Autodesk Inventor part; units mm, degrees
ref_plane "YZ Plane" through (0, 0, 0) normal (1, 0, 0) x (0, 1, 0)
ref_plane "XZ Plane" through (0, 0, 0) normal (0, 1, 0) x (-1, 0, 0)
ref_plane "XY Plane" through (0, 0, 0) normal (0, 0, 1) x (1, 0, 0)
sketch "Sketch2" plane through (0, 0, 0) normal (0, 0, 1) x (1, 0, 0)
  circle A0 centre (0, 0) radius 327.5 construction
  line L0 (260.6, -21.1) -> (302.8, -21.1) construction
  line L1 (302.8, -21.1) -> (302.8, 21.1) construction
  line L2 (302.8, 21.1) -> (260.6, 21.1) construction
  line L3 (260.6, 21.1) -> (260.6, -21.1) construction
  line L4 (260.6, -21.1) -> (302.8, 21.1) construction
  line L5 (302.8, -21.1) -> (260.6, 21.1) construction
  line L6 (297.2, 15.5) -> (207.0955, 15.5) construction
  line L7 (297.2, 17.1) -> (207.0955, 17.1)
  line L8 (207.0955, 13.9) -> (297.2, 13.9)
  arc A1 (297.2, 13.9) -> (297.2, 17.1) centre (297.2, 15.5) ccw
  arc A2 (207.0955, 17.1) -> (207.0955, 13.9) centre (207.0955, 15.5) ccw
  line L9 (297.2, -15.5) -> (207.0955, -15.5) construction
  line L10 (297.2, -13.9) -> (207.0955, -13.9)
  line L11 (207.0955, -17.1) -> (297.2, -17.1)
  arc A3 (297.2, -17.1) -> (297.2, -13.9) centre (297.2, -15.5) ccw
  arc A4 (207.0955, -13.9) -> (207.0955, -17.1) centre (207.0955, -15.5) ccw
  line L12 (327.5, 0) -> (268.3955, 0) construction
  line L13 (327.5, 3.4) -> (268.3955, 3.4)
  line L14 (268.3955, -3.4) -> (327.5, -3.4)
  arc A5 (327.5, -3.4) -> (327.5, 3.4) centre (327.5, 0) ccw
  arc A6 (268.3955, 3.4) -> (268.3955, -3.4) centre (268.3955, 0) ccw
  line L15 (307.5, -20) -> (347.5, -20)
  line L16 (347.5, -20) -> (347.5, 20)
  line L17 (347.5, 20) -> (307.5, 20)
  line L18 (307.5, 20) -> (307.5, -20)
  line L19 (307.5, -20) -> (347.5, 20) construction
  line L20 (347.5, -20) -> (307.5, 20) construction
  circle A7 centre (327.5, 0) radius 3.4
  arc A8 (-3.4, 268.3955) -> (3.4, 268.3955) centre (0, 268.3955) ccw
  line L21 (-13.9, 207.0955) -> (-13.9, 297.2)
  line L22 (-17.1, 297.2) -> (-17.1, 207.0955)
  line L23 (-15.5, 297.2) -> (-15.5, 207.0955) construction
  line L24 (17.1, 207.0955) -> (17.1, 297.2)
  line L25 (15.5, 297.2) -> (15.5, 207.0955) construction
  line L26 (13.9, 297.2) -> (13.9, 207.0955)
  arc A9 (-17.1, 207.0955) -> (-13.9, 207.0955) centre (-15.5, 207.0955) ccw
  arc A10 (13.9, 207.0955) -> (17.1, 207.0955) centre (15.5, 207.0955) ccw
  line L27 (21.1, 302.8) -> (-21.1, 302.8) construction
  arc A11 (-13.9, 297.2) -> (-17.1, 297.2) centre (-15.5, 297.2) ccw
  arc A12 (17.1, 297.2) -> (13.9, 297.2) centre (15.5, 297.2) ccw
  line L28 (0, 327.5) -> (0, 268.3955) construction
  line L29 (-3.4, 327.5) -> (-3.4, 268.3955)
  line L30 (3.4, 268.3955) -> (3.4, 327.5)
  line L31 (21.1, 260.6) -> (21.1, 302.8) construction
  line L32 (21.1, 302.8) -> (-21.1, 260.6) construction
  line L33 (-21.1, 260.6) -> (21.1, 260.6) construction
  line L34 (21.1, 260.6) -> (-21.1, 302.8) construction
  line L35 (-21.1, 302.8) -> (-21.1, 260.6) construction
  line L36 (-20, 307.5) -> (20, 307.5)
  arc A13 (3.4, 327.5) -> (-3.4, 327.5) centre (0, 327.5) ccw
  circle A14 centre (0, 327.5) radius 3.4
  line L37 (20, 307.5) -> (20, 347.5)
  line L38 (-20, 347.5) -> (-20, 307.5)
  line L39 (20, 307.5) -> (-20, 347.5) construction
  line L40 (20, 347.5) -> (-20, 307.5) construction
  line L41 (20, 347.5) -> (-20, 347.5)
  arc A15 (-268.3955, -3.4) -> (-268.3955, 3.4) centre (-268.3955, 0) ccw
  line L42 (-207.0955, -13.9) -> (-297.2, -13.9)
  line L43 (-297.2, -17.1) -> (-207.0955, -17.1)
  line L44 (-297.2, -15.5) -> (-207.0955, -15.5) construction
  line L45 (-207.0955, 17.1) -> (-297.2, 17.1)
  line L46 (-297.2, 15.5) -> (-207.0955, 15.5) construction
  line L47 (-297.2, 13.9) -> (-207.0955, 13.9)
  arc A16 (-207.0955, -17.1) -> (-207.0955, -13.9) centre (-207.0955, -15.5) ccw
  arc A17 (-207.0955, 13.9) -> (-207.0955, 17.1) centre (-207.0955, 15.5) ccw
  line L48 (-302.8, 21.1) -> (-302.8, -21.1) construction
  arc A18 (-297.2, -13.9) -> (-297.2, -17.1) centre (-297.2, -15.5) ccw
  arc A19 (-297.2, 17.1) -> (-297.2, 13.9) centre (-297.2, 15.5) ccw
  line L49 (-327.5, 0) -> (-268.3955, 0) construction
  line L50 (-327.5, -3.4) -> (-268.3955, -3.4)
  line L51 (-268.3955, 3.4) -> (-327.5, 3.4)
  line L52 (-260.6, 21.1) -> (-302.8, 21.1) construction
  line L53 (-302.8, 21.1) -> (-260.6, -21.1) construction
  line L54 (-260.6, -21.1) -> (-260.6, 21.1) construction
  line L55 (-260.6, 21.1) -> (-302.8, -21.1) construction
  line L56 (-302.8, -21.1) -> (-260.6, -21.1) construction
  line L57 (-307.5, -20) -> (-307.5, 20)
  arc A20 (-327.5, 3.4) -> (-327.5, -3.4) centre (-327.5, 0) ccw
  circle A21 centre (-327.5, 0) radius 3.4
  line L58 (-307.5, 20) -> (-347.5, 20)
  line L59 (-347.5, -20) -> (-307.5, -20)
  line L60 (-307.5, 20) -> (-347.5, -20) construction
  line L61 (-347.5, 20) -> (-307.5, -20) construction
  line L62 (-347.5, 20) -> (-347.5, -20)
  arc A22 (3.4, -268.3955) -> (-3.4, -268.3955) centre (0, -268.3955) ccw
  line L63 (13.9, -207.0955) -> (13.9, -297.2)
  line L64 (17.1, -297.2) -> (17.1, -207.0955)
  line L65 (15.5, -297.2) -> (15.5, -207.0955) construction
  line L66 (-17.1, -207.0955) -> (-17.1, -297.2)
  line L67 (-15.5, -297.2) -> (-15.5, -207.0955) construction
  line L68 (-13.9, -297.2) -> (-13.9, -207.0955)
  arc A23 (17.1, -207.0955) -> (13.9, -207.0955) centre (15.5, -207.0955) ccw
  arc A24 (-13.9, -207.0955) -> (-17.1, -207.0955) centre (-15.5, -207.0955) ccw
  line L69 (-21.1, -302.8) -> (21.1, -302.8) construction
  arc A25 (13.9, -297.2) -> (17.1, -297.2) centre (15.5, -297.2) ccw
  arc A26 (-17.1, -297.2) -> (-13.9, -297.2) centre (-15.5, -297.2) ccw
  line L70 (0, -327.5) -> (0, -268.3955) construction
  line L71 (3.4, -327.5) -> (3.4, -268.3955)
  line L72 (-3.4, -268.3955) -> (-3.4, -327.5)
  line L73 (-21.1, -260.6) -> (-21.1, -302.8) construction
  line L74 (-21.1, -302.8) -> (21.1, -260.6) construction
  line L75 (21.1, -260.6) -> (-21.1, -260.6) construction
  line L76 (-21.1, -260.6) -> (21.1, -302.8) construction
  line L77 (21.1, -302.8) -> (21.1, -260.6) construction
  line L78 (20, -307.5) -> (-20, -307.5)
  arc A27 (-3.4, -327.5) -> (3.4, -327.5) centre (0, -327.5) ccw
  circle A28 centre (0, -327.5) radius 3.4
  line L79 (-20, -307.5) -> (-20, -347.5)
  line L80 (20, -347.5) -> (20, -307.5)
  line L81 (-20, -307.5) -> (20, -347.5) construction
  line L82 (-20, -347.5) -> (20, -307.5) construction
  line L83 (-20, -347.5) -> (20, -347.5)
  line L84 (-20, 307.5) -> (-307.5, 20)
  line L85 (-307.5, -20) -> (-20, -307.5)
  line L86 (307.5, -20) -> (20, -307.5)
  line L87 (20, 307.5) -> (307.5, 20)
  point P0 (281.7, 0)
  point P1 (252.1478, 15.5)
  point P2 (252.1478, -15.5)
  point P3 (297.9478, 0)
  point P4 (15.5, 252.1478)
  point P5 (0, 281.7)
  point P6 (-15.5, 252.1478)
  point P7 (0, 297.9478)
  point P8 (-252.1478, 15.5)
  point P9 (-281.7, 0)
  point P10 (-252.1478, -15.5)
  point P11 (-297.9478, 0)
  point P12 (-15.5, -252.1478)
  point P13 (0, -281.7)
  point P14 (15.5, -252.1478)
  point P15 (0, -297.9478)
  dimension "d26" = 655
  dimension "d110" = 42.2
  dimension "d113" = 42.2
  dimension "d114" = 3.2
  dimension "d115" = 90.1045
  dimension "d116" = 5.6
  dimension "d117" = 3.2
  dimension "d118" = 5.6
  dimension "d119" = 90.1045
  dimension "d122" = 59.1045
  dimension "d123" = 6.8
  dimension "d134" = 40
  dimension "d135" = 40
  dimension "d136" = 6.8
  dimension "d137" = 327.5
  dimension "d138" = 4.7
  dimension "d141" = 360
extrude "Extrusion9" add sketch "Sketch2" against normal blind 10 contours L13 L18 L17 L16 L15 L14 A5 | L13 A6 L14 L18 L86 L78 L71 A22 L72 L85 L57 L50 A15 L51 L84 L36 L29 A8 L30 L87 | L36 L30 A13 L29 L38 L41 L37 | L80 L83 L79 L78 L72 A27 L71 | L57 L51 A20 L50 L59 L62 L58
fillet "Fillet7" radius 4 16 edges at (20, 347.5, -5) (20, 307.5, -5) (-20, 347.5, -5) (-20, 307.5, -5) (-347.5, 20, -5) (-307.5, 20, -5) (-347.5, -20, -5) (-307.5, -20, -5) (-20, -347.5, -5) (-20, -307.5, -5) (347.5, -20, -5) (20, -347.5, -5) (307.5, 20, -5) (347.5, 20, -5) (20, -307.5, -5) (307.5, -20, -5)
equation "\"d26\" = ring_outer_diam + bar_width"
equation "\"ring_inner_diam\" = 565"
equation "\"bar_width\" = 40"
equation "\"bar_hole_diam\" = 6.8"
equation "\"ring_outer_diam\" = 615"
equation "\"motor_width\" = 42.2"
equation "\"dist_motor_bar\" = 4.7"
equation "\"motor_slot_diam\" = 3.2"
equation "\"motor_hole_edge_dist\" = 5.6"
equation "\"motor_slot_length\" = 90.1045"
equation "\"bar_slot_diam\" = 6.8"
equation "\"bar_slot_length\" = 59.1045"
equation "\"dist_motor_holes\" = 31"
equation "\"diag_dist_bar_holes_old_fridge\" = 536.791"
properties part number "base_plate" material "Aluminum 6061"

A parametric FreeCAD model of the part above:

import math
import FreeCAD as App
import Part
import Sketcher
Q = App.Units.Quantity


def edges_at(feature, points):
    """Names of the edges that pass closest to the given points."""
    edges = feature.Shape.Edges
    near = lambda p: min(range(len(edges)), key=lambda i: edges[i].distToShape(Part.Vertex(*p))[0])
    return sorted({f"Edge{near(p) + 1}" for p in points})

doc = App.newDocument("Part")
params = doc.addObject("Spreadsheet::Sheet", "Params")
for row, (alias, value) in enumerate([
    ("sketch1_radius", "3.4 mm"),
    ("sketch1_radius2", "1.6 mm"),
    ("sketch1_width", "40 mm"),
    ("pad1_length", "10 mm"),
    ("fillet_radius", "4 mm"),
], start=1):
    params.set(f"A{row}", alias)
    params.set(f"B{row}", "=" + value)
    params.setAlias(f"B{row}", alias)

body = doc.addObject("PartDesign::Body", "Body")

sketch1 = body.newObject("Sketcher::SketchObject", "Sketch")
sketch1.AttachmentSupport = (doc.getObject("XY_Plane"), [""])
sketch1.MapMode = "FlatFace"
sketch1.addGeometry(Part.LineSegment(App.Vector(347.5, 20, 0), App.Vector(307.5, 20, 0)), False)
sketch1.addGeometry(Part.LineSegment(App.Vector(307.5, 20, 0), App.Vector(20, 307.5, 0)), False)
sketch1.addGeometry(Part.LineSegment(App.Vector(20, 307.5, 0), App.Vector(20, 347.5, 0)), False)
sketch1.addGeometry(Part.LineSegment(App.Vector(20, 347.5, 0), App.Vector(-20, 347.5, 0)), False)
sketch1.addGeometry(Part.LineSegment(App.Vector(-20, 347.5, 0), App.Vector(-20, 307.5, 0)), False)
sketch1.addGeometry(Part.LineSegment(App.Vector(-20, 307.5, 0), App.Vector(-307.5, 20, 0)), False)
sketch1.addGeometry(Part.LineSegment(App.Vector(-307.5, 20, 0), App.Vector(-347.5, 20, 0)), False)
sketch1.addGeometry(Part.LineSegment(App.Vector(-347.5, 20, 0), App.Vector(-347.5, -20, 0)), False)
sketch1.addGeometry(Part.LineSegment(App.Vector(-347.5, -20, 0), App.Vector(-307.5, -20, 0)), False)
sketch1.addGeometry(Part.LineSegment(App.Vector(-307.5, -20, 0), App.Vector(-20, -307.5, 0)), False)
sketch1.addGeometry(Part.LineSegment(App.Vector(-20, -307.5, 0), App.Vector(-20, -347.5, 0)), False)
sketch1.addGeometry(Part.LineSegment(App.Vector(-20, -347.5, 0), App.Vector(20, -347.5, 0)), False)
sketch1.addGeometry(Part.LineSegment(App.Vector(20, -347.5, 0), App.Vector(20, -307.5, 0)), False)
sketch1.addGeometry(Part.LineSegment(App.Vector(20, -307.5, 0), App.Vector(307.5, -20, 0)), False)
sketch1.addGeometry(Part.LineSegment(App.Vector(307.5, -20, 0), App.Vector(347.5, -20, 0)), False)
sketch1.addGeometry(Part.LineSegment(App.Vector(347.5, -20, 0), App.Vector(347.5, 20, 0)), False)
sketch1.addGeometry(Part.ArcOfCircle(Part.Circle(App.Vector(327.5, 0, 0), App.Vector(0, 0, 1), 3.4), math.radians(-90), math.radians(90)), False)
sketch1.addGeometry(Part.LineSegment(App.Vector(327.5, -3.4, 0), App.Vector(268.4, -3.4, 0)), False)
sketch1.addGeometry(Part.ArcOfCircle(Part.Circle(App.Vector(268.4, 0, 0), App.Vector(0, 0, 1), 3.4), math.radians(90), math.radians(270)), False)
sketch1.addGeometry(Part.LineSegment(App.Vector(268.4, 3.4, 0), App.Vector(327.5, 3.4, 0)), False)
sketch1.addGeometry(Part.LineSegment(App.Vector(13.9, 207.1, 0), App.Vector(13.9, 297.2, 0)), False)
sketch1.addGeometry(Part.ArcOfCircle(Part.Circle(App.Vector(15.5, 297.2, 0), App.Vector(0, 0, 1), 1.6), math.radians(0), math.radians(180)), False)
sketch1.addGeometry(Part.LineSegment(App.Vector(17.1, 297.2, 0), App.Vector(17.1, 207.1, 0)), False)
sketch1.addGeometry(Part.ArcOfCircle(Part.Circle(App.Vector(15.5, 207.1, 0), App.Vector(0, 0, 1), 1.6), math.radians(180), math.radians(360)), False)
sketch1.addGeometry(Part.LineSegment(App.Vector(3.4, -268.4, 0), App.Vector(3.4, -327.5, 0)), False)
sketch1.addGeometry(Part.ArcOfCircle(Part.Circle(App.Vector(0, -327.5, 0), App.Vector(0, 0, 1), 3.4), math.radians(180), math.radians(360)), False)
sketch1.addGeometry(Part.LineSegment(App.Vector(-3.4, -327.5, 0), App.Vector(-3.4, -268.4, 0)), False)
sketch1.addGeometry(Part.ArcOfCircle(Part.Circle(App.Vector(0, -268.4, 0), App.Vector(0, 0, 1), 3.4), math.radians(0), math.radians(180)), False)
sketch1.addGeometry(Part.LineSegment(App.Vector(-268.4, -3.4, 0), App.Vector(-327.5, -3.4, 0)), False)
sketch1.addGeometry(Part.ArcOfCircle(Part.Circle(App.Vector(-327.5, 0, 0), App.Vector(0, 0, 1), 3.4), math.radians(90), math.radians(270)), False)
sketch1.addGeometry(Part.LineSegment(App.Vector(-327.5, 3.4, 0), App.Vector(-268.4, 3.4, 0)), False)
sketch1.addGeometry(Part.ArcOfCircle(Part.Circle(App.Vector(-268.4, 0, 0), App.Vector(0, 0, 1), 3.4), math.radians(-90), math.radians(90)), False)
sketch1.addGeometry(Part.LineSegment(App.Vector(-3.4, 268.4, 0), App.Vector(-3.4, 327.5, 0)), False)
sketch1.addGeometry(Part.ArcOfCircle(Part.Circle(App.Vector(0, 327.5, 0), App.Vector(0, 0, 1), 3.4), math.radians(0), math.radians(180)), False)
sketch1.addGeometry(Part.LineSegment(App.Vector(3.4, 327.5, 0), App.Vector(3.4, 268.4, 0)), False)
sketch1.addGeometry(Part.ArcOfCircle(Part.Circle(App.Vector(0, 268.4, 0), App.Vector(0, 0, 1), 3.4), math.radians(180), math.radians(360)), False)
sketch1.addGeometry(Part.LineSegment(App.Vector(-17.1, -297.2, 0), App.Vector(-17.1, -207.1, 0)), False)
sketch1.addGeometry(Part.ArcOfCircle(Part.Circle(App.Vector(-15.5, -207.1, 0), App.Vector(0, 0, 1), 1.6), math.radians(0), math.radians(180)), False)
sketch1.addGeometry(Part.LineSegment(App.Vector(-13.9, -207.1, 0), App.Vector(-13.9, -297.2, 0)), False)
sketch1.addGeometry(Part.ArcOfCircle(Part.Circle(App.Vector(-15.5, -297.2, 0), App.Vector(0, 0, 1), 1.6), math.radians(180), math.radians(360)), False)
sketch1.addGeometry(Part.LineSegment(App.Vector(-297.2, -13.9, 0), App.Vector(-207.1, -13.9, 0)), False)
sketch1.addGeometry(Part.ArcOfCircle(Part.Circle(App.Vector(-207.1, -15.5, 0), App.Vector(0, 0, 1), 1.6), math.radians(-90), math.radians(90)), False)
sketch1.addGeometry(Part.LineSegment(App.Vector(-207.1, -17.1, 0), App.Vector(-297.2, -17.1, 0)), False)
sketch1.addGeometry(Part.ArcOfCircle(Part.Circle(App.Vector(-297.2, -15.5, 0), App.Vector(0, 0, 1), 1.6), math.radians(90), math.radians(270)), False)
sketch1.addGeometry(Part.LineSegment(App.Vector(13.9, -297.2, 0), App.Vector(13.9, -207.1, 0)), False)
sketch1.addGeometry(Part.ArcOfCircle(Part.Circle(App.Vector(15.5, -207.1, 0), App.Vector(0, 0, 1), 1.6), math.radians(0), math.radians(180)), False)
sketch1.addGeometry(Part.LineSegment(App.Vector(17.1, -207.1, 0), App.Vector(17.1, -297.2, 0)), False)
sketch1.addGeometry(Part.ArcOfCircle(Part.Circle(App.Vector(15.5, -297.2, 0), App.Vector(0, 0, 1), 1.6), math.radians(180), math.radians(360)), False)
sketch1.addGeometry(Part.LineSegment(App.Vector(207.1, -13.9, 0), App.Vector(297.2, -13.9, 0)), False)
sketch1.addGeometry(Part.ArcOfCircle(Part.Circle(App.Vector(297.2, -15.5, 0), App.Vector(0, 0, 1), 1.6), math.radians(-90), math.radians(90)), False)
sketch1.addGeometry(Part.LineSegment(App.Vector(297.2, -17.1, 0), App.Vector(207.1, -17.1, 0)), False)
sketch1.addGeometry(Part.ArcOfCircle(Part.Circle(App.Vector(207.1, -15.5, 0), App.Vector(0, 0, 1), 1.6), math.radians(90), math.radians(270)), False)
sketch1.addGeometry(Part.LineSegment(App.Vector(-297.2, 17.1, 0), App.Vector(-207.1, 17.1, 0)), False)
sketch1.addGeometry(Part.ArcOfCircle(Part.Circle(App.Vector(-207.1, 15.5, 0), App.Vector(0, 0, 1), 1.6), math.radians(-90), math.radians(90)), False)
sketch1.addGeometry(Part.LineSegment(App.Vector(-207.1, 13.9, 0), App.Vector(-297.2, 13.9, 0)), False)
sketch1.addGeometry(Part.ArcOfCircle(Part.Circle(App.Vector(-297.2, 15.5, 0), App.Vector(0, 0, 1), 1.6), math.radians(90), math.radians(270)), False)
sketch1.addGeometry(Part.LineSegment(App.Vector(-13.9, 297.2, 0), App.Vector(-13.9, 207.1, 0)), False)
sketch1.addGeometry(Part.ArcOfCircle(Part.Circle(App.Vector(-15.5, 207.1, 0), App.Vector(0, 0, 1), 1.6), math.radians(180), math.radians(360)), False)
sketch1.addGeometry(Part.LineSegment(App.Vector(-17.1, 207.1, 0), App.Vector(-17.1, 297.2, 0)), False)
sketch1.addGeometry(Part.ArcOfCircle(Part.Circle(App.Vector(-15.5, 297.2, 0), App.Vector(0, 0, 1), 1.6), math.radians(0), math.radians(180)), False)
sketch1.addGeometry(Part.LineSegment(App.Vector(207.1, 17.1, 0), App.Vector(297.2, 17.1, 0)), False)
sketch1.addGeometry(Part.ArcOfCircle(Part.Circle(App.Vector(297.2, 15.5, 0), App.Vector(0, 0, 1), 1.6), math.radians(-90), math.radians(90)), False)
sketch1.addGeometry(Part.LineSegment(App.Vector(297.2, 13.9, 0), App.Vector(207.1, 13.9, 0)), False)
sketch1.addGeometry(Part.ArcOfCircle(Part.Circle(App.Vector(207.1, 15.5, 0), App.Vector(0, 0, 1), 1.6), math.radians(90), math.radians(270)), False)
sketch1.addConstraint(Sketcher.Constraint("Coincident", 0, 2, 1, 1))
sketch1.addConstraint(Sketcher.Constraint("Coincident", 1, 2, 2, 1))
sketch1.addConstraint(Sketcher.Constraint("Coincident", 2, 2, 3, 1))
sketch1.addConstraint(Sketcher.Constraint("Coincident", 3, 2, 4, 1))
sketch1.addConstraint(Sketcher.Constraint("Coincident", 4, 2, 5, 1))
sketch1.addConstraint(Sketcher.Constraint("Coincident", 5, 2, 6, 1))
sketch1.addConstraint(Sketcher.Constraint("Coincident", 6, 2, 7, 1))
sketch1.addConstraint(Sketcher.Constraint("Coincident", 7, 2, 8, 1))
sketch1.addConstraint(Sketcher.Constraint("Coincident", 8, 2, 9, 1))
sketch1.addConstraint(Sketcher.Constraint("Coincident", 9, 2, 10, 1))
sketch1.addConstraint(Sketcher.Constraint("Coincident", 10, 2, 11, 1))
sketch1.addConstraint(Sketcher.Constraint("Coincident", 11, 2, 12, 1))
sketch1.addConstraint(Sketcher.Constraint("Coincident", 12, 2, 13, 1))
sketch1.addConstraint(Sketcher.Constraint("Coincident", 13, 2, 14, 1))
sketch1.addConstraint(Sketcher.Constraint("Coincident", 14, 2, 15, 1))
sketch1.addConstraint(Sketcher.Constraint("Coincident", 15, 2, 0, 1))
sketch1.addConstraint(Sketcher.Constraint("Tangent", 16, 1, 17, 1))
sketch1.addConstraint(Sketcher.Constraint("Tangent", 17, 2, 18, 2))
sketch1.addConstraint(Sketcher.Constraint("Tangent", 18, 1, 19, 1))
sketch1.addConstraint(Sketcher.Constraint("Tangent", 19, 2, 16, 2))
sketch1.addConstraint(Sketcher.Constraint("Tangent", 20, 2, 21, 2))
sketch1.addConstraint(Sketcher.Constraint("Tangent", 21, 1, 22, 1))
sketch1.addConstraint(Sketcher.Constraint("Tangent", 22, 2, 23, 2))
sketch1.addConstraint(Sketcher.Constraint("Tangent", 23, 1, 20, 1))
sketch1.addConstraint(Sketcher.Constraint("Tangent", 24, 2, 25, 2))
sketch1.addConstraint(Sketcher.Constraint("Tangent", 25, 1, 26, 1))
sketch1.addConstraint(Sketcher.Constraint("Tangent", 26, 2, 27, 2))
sketch1.addConstraint(Sketcher.Constraint("Tangent", 27, 1, 24, 1))
sketch1.addConstraint(Sketcher.Constraint("Tangent", 28, 2, 29, 2))
sketch1.addConstraint(Sketcher.Constraint("Tangent", 29, 1, 30, 1))
sketch1.addConstraint(Sketcher.Constraint("Tangent", 30, 2, 31, 2))
sketch1.addConstraint(Sketcher.Constraint("Tangent", 31, 1, 28, 1))
sketch1.addConstraint(Sketcher.Constraint("Tangent", 32, 2, 33, 2))
sketch1.addConstraint(Sketcher.Constraint("Tangent", 33, 1, 34, 1))
sketch1.addConstraint(Sketcher.Constraint("Tangent", 34, 2, 35, 2))
sketch1.addConstraint(Sketcher.Constraint("Tangent", 35, 1, 32, 1))
sketch1.addConstraint(Sketcher.Constraint("Tangent", 36, 2, 37, 2))
sketch1.addConstraint(Sketcher.Constraint("Tangent", 37, 1, 38, 1))
sketch1.addConstraint(Sketcher.Constraint("Tangent", 38, 2, 39, 2))
sketch1.addConstraint(Sketcher.Constraint("Tangent", 39, 1, 36, 1))
sketch1.addConstraint(Sketcher.Constraint("Tangent", 40, 2, 41, 2))
sketch1.addConstraint(Sketcher.Constraint("Tangent", 41, 1, 42, 1))
sketch1.addConstraint(Sketcher.Constraint("Tangent", 42, 2, 43, 2))
sketch1.addConstraint(Sketcher.Constraint("Tangent", 43, 1, 40, 1))
sketch1.addConstraint(Sketcher.Constraint("Tangent", 44, 2, 45, 2))
sketch1.addConstraint(Sketcher.Constraint("Tangent", 45, 1, 46, 1))
sketch1.addConstraint(Sketcher.Constraint("Tangent", 46, 2, 47, 2))
sketch1.addConstraint(Sketcher.Constraint("Tangent", 47, 1, 44, 1))
sketch1.addConstraint(Sketcher.Constraint("Tangent", 48, 2, 49, 2))
sketch1.addConstraint(Sketcher.Constraint("Tangent", 49, 1, 50, 1))
sketch1.addConstraint(Sketcher.Constraint("Tangent", 50, 2, 51, 2))
sketch1.addConstraint(Sketcher.Constraint("Tangent", 51, 1, 48, 1))
sketch1.addConstraint(Sketcher.Constraint("Tangent", 52, 2, 53, 2))
sketch1.addConstraint(Sketcher.Constraint("Tangent", 53, 1, 54, 1))
sketch1.addConstraint(Sketcher.Constraint("Tangent", 54, 2, 55, 2))
sketch1.addConstraint(Sketcher.Constraint("Tangent", 55, 1, 52, 1))
sketch1.addConstraint(Sketcher.Constraint("Tangent", 56, 2, 57, 2))
sketch1.addConstraint(Sketcher.Constraint("Tangent", 57, 1, 58, 1))
sketch1.addConstraint(Sketcher.Constraint("Tangent", 58, 2, 59, 2))
sketch1.addConstraint(Sketcher.Constraint("Tangent", 59, 1, 56, 1))
sketch1.addConstraint(Sketcher.Constraint("Tangent", 60, 2, 61, 2))
sketch1.addConstraint(Sketcher.Constraint("Tangent", 61, 1, 62, 1))
sketch1.addConstraint(Sketcher.Constraint("Tangent", 62, 2, 63, 2))
sketch1.addConstraint(Sketcher.Constraint("Tangent", 63, 1, 60, 1))
sketch1.addConstraint(Sketcher.Constraint("Horizontal", 0))
sketch1.addConstraint(Sketcher.Constraint("Vertical", 2))
sketch1.addConstraint(Sketcher.Constraint("Horizontal", 3))
sketch1.addConstraint(Sketcher.Constraint("Vertical", 4))
sketch1.addConstraint(Sketcher.Constraint("Horizontal", 6))
sketch1.addConstraint(Sketcher.Constraint("Vertical", 7))
sketch1.addConstraint(Sketcher.Constraint("Horizontal", 8))
sketch1.addConstraint(Sketcher.Constraint("Vertical", 10))
sketch1.addConstraint(Sketcher.Constraint("Horizontal", 11))
sketch1.addConstraint(Sketcher.Constraint("Vertical", 12))
sketch1.addConstraint(Sketcher.Constraint("Horizontal", 14))
sketch1.addConstraint(Sketcher.Constraint("Vertical", 15))
sketch1.addConstraint(Sketcher.Constraint("Horizontal", 17))
sketch1.addConstraint(Sketcher.Constraint("Horizontal", 19))
sketch1.addConstraint(Sketcher.Constraint("Vertical", 20))
sketch1.addConstraint(Sketcher.Constraint("Vertical", 22))
sketch1.addConstraint(Sketcher.Constraint("Vertical", 24))
sketch1.addConstraint(Sketcher.Constraint("Vertical", 26))
sketch1.addConstraint(Sketcher.Constraint("Horizontal", 28))
sketch1.addConstraint(Sketcher.Constraint("Horizontal", 30))
sketch1.addConstraint(Sketcher.Constraint("Vertical", 32))
sketch1.addConstraint(Sketcher.Constraint("Vertical", 34))
sketch1.addConstraint(Sketcher.Constraint("Vertical", 36))
sketch1.addConstraint(Sketcher.Constraint("Vertical", 38))
sketch1.addConstraint(Sketcher.Constraint("Horizontal", 40))
sketch1.addConstraint(Sketcher.Constraint("Horizontal", 42))
sketch1.addConstraint(Sketcher.Constraint("Vertical", 44))
sketch1.addConstraint(Sketcher.Constraint("Vertical", 46))
sketch1.addConstraint(Sketcher.Constraint("Horizontal", 48))
sketch1.addConstraint(Sketcher.Constraint("Horizontal", 50))
sketch1.addConstraint(Sketcher.Constraint("Horizontal", 52))
sketch1.addConstraint(Sketcher.Constraint("Horizontal", 54))
sketch1.addConstraint(Sketcher.Constraint("Vertical", 56))
sketch1.addConstraint(Sketcher.Constraint("Vertical", 58))
sketch1.addConstraint(Sketcher.Constraint("Horizontal", 60))
sketch1.addConstraint(Sketcher.Constraint("Horizontal", 62))
sketch1.addConstraint(Sketcher.Constraint("Equal", 18, 25))
sketch1.addConstraint(Sketcher.Constraint("Equal", 27, 29))
sketch1.addConstraint(Sketcher.Constraint("Equal", 31, 33))
sketch1.addConstraint(Sketcher.Constraint("Equal", 23, 37))
sketch1.addConstraint(Sketcher.Constraint("Equal", 39, 41))
sketch1.addConstraint(Sketcher.Constraint("Equal", 43, 45))
sketch1.addConstraint(Sketcher.Constraint("Equal", 47, 49))
sketch1.addConstraint(Sketcher.Constraint("Equal", 51, 53))
sketch1.addConstraint(Sketcher.Constraint("Equal", 55, 57))
sketch1.addConstraint(Sketcher.Constraint("Equal", 59, 61))
sketch1.addConstraint(Sketcher.Constraint("Symmetric", 16, 3, 29, 3, -1, 1))
sketch1.addConstraint(Sketcher.Constraint("Symmetric", 25, 3, 33, 3, -1, 1))
sketch1.addConstraint(Sketcher.Constraint("Symmetric", 23, 3, 37, 3, -1, 1))
sketch1.addConstraint(Sketcher.Constraint("Symmetric", 51, 3, 53, 3, -1, 1))
sketch1.addConstraint(Sketcher.Constraint("Symmetric", 45, 3, 57, 3, -1, 1))
sketch1.addConstraint(Sketcher.Constraint("Symmetric", 43, 3, 61, 3, -1, 1))
sketch1.addConstraint(Sketcher.Constraint("Symmetric", 0, 2, 8, 2, -1, 1))
sketch1.addConstraint(Sketcher.Constraint("Symmetric", 1, 2, 9, 2, -1, 1))
sketch1.addConstraint(Sketcher.Constraint("Symmetric", 3, 2, 11, 2, -1, 1))
sketch1.addConstraint(Sketcher.Constraint("Symmetric", 5, 2, 13, 2, -1, 1))
sketch1.addConstraint(Sketcher.Constraint("Symmetric", 18, 3, 31, 3, -2))
sketch1.addConstraint(Sketcher.Constraint("Symmetric", 37, 3, 45, 3, -2))
sketch1.addConstraint(Sketcher.Constraint("Symmetric", 43, 3, 49, 3, -2))
sketch1.addConstraint(Sketcher.Constraint("Symmetric", 1, 2, 4, 2, -2))
sketch1.addConstraint(Sketcher.Constraint("Symmetric", 0, 2, 5, 2, -2))
sketch1.addConstraint(Sketcher.Constraint("Symmetric", 27, 3, 35, 3, -1))
sketch1.addConstraint(Sketcher.Constraint("Perpendicular", 1, 5))
sketch1.addConstraint(Sketcher.Constraint("Perpendicular", 9, 13))
sketch1.addConstraint(Sketcher.Constraint("Horizontal", 39, 3, 47, 3))
sketch1.addConstraint(Sketcher.Constraint("Horizontal", 21, 3, 59, 3))
sketch1.addConstraint(Sketcher.Constraint("Vertical", 41, 3, 53, 3))
sketch1.addConstraint(Sketcher.Constraint("Vertical", 43, 3, 55, 3))
sketch1.addConstraint(Sketcher.Constraint("Vertical", 51, 3, 63, 3))
sketch1.addConstraint(Sketcher.Constraint("Equal", 0, 3))
sketch1.addConstraint(Sketcher.Constraint("Equal", 3, 6))
sketch1.addConstraint(Sketcher.Constraint("Equal", 14, 2))
sketch1.addConstraint(Sketcher.Constraint("Equal", 4, 7))
sketch1.addConstraint(Sketcher.Constraint("Equal", 62, 20))
sketch1.addConstraint(Sketcher.Constraint("Equal", 30, 24))
sketch1.addConstraint(Sketcher.Constraint("Equal", 22, 36))
sketch1.addConstraint(Sketcher.Constraint("Radius", 16, Q("3.4 mm")))
sketch1.addConstraint(Sketcher.Constraint("Radius", 21, Q("1.6 mm")))
sketch1.addConstraint(Sketcher.Constraint("DistanceX", 0, 2, 0, 1, Q("40 mm")))
sketch1.addConstraint(Sketcher.Constraint("DistanceX", -1, 1, 16, 3, Q("327.5 mm")))
sketch1.addConstraint(Sketcher.Constraint("DistanceY", 25, 3, -1, 1, Q("327.5 mm")))
sketch1.addConstraint(Sketcher.Constraint("DistanceX", 17, 2, 17, 1, Q("59.1045 mm")))
sketch1.addConstraint(Sketcher.Constraint("DistanceX", 40, 1, 40, 2, Q("90.1045 mm")))
sketch1.addConstraint(Sketcher.Constraint("DistanceX", -1, 1, 21, 3, Q("15.5 mm")))
sketch1.addConstraint(Sketcher.Constraint("DistanceY", -1, 1, 21, 3, Q("297.2 mm")))
sketch1.addConstraint(Sketcher.Constraint("DistanceY", 41, 3, -1, 1, Q("15.5 mm")))
sketch1.addConstraint(Sketcher.Constraint("DistanceX", 43, 3, -1, 1, Q("297.2 mm")))
sketch1.addConstraint(Sketcher.Constraint("DistanceX", -1, 1, 0, 2, Q("307.5 mm")))
sketch1.setExpression("Constraints[140]", "Params.sketch1_radius")
sketch1.setExpression("Constraints[141]", "Params.sketch1_radius2")
sketch1.setExpression("Constraints[142]", "Params.sketch1_width")
pad1 = body.newObject("PartDesign::Pad", "Pad")
pad1.Profile = sketch1
pad1.setExpression("Length", "Params.pad1_length")
pad1.Reversed = True
doc.recompute()

fillet = body.newObject("PartDesign::Fillet", "Fillet")
fillet.Base = (pad1, edges_at(pad1, [
    (20, 347.5, -5),
    (20, 307.5, -5),
    (-20, 347.5, -5),
    (-20, 307.5, -5),
    (-347.5, 20, -5),
    (-307.5, 20, -5),
    (-347.5, -20, -5),
    (-307.5, -20, -5),
    (-20, -347.5, -5),
    (-20, -307.5, -5),
    (347.5, -20, -5),
    (20, -347.5, -5),
    (307.5, 20, -5),
    (347.5, 20, -5),
    (20, -307.5, -5),
    (307.5, -20, -5),
]))
fillet.setExpression("Radius", "Params.fillet_radius")

doc.recompute()
